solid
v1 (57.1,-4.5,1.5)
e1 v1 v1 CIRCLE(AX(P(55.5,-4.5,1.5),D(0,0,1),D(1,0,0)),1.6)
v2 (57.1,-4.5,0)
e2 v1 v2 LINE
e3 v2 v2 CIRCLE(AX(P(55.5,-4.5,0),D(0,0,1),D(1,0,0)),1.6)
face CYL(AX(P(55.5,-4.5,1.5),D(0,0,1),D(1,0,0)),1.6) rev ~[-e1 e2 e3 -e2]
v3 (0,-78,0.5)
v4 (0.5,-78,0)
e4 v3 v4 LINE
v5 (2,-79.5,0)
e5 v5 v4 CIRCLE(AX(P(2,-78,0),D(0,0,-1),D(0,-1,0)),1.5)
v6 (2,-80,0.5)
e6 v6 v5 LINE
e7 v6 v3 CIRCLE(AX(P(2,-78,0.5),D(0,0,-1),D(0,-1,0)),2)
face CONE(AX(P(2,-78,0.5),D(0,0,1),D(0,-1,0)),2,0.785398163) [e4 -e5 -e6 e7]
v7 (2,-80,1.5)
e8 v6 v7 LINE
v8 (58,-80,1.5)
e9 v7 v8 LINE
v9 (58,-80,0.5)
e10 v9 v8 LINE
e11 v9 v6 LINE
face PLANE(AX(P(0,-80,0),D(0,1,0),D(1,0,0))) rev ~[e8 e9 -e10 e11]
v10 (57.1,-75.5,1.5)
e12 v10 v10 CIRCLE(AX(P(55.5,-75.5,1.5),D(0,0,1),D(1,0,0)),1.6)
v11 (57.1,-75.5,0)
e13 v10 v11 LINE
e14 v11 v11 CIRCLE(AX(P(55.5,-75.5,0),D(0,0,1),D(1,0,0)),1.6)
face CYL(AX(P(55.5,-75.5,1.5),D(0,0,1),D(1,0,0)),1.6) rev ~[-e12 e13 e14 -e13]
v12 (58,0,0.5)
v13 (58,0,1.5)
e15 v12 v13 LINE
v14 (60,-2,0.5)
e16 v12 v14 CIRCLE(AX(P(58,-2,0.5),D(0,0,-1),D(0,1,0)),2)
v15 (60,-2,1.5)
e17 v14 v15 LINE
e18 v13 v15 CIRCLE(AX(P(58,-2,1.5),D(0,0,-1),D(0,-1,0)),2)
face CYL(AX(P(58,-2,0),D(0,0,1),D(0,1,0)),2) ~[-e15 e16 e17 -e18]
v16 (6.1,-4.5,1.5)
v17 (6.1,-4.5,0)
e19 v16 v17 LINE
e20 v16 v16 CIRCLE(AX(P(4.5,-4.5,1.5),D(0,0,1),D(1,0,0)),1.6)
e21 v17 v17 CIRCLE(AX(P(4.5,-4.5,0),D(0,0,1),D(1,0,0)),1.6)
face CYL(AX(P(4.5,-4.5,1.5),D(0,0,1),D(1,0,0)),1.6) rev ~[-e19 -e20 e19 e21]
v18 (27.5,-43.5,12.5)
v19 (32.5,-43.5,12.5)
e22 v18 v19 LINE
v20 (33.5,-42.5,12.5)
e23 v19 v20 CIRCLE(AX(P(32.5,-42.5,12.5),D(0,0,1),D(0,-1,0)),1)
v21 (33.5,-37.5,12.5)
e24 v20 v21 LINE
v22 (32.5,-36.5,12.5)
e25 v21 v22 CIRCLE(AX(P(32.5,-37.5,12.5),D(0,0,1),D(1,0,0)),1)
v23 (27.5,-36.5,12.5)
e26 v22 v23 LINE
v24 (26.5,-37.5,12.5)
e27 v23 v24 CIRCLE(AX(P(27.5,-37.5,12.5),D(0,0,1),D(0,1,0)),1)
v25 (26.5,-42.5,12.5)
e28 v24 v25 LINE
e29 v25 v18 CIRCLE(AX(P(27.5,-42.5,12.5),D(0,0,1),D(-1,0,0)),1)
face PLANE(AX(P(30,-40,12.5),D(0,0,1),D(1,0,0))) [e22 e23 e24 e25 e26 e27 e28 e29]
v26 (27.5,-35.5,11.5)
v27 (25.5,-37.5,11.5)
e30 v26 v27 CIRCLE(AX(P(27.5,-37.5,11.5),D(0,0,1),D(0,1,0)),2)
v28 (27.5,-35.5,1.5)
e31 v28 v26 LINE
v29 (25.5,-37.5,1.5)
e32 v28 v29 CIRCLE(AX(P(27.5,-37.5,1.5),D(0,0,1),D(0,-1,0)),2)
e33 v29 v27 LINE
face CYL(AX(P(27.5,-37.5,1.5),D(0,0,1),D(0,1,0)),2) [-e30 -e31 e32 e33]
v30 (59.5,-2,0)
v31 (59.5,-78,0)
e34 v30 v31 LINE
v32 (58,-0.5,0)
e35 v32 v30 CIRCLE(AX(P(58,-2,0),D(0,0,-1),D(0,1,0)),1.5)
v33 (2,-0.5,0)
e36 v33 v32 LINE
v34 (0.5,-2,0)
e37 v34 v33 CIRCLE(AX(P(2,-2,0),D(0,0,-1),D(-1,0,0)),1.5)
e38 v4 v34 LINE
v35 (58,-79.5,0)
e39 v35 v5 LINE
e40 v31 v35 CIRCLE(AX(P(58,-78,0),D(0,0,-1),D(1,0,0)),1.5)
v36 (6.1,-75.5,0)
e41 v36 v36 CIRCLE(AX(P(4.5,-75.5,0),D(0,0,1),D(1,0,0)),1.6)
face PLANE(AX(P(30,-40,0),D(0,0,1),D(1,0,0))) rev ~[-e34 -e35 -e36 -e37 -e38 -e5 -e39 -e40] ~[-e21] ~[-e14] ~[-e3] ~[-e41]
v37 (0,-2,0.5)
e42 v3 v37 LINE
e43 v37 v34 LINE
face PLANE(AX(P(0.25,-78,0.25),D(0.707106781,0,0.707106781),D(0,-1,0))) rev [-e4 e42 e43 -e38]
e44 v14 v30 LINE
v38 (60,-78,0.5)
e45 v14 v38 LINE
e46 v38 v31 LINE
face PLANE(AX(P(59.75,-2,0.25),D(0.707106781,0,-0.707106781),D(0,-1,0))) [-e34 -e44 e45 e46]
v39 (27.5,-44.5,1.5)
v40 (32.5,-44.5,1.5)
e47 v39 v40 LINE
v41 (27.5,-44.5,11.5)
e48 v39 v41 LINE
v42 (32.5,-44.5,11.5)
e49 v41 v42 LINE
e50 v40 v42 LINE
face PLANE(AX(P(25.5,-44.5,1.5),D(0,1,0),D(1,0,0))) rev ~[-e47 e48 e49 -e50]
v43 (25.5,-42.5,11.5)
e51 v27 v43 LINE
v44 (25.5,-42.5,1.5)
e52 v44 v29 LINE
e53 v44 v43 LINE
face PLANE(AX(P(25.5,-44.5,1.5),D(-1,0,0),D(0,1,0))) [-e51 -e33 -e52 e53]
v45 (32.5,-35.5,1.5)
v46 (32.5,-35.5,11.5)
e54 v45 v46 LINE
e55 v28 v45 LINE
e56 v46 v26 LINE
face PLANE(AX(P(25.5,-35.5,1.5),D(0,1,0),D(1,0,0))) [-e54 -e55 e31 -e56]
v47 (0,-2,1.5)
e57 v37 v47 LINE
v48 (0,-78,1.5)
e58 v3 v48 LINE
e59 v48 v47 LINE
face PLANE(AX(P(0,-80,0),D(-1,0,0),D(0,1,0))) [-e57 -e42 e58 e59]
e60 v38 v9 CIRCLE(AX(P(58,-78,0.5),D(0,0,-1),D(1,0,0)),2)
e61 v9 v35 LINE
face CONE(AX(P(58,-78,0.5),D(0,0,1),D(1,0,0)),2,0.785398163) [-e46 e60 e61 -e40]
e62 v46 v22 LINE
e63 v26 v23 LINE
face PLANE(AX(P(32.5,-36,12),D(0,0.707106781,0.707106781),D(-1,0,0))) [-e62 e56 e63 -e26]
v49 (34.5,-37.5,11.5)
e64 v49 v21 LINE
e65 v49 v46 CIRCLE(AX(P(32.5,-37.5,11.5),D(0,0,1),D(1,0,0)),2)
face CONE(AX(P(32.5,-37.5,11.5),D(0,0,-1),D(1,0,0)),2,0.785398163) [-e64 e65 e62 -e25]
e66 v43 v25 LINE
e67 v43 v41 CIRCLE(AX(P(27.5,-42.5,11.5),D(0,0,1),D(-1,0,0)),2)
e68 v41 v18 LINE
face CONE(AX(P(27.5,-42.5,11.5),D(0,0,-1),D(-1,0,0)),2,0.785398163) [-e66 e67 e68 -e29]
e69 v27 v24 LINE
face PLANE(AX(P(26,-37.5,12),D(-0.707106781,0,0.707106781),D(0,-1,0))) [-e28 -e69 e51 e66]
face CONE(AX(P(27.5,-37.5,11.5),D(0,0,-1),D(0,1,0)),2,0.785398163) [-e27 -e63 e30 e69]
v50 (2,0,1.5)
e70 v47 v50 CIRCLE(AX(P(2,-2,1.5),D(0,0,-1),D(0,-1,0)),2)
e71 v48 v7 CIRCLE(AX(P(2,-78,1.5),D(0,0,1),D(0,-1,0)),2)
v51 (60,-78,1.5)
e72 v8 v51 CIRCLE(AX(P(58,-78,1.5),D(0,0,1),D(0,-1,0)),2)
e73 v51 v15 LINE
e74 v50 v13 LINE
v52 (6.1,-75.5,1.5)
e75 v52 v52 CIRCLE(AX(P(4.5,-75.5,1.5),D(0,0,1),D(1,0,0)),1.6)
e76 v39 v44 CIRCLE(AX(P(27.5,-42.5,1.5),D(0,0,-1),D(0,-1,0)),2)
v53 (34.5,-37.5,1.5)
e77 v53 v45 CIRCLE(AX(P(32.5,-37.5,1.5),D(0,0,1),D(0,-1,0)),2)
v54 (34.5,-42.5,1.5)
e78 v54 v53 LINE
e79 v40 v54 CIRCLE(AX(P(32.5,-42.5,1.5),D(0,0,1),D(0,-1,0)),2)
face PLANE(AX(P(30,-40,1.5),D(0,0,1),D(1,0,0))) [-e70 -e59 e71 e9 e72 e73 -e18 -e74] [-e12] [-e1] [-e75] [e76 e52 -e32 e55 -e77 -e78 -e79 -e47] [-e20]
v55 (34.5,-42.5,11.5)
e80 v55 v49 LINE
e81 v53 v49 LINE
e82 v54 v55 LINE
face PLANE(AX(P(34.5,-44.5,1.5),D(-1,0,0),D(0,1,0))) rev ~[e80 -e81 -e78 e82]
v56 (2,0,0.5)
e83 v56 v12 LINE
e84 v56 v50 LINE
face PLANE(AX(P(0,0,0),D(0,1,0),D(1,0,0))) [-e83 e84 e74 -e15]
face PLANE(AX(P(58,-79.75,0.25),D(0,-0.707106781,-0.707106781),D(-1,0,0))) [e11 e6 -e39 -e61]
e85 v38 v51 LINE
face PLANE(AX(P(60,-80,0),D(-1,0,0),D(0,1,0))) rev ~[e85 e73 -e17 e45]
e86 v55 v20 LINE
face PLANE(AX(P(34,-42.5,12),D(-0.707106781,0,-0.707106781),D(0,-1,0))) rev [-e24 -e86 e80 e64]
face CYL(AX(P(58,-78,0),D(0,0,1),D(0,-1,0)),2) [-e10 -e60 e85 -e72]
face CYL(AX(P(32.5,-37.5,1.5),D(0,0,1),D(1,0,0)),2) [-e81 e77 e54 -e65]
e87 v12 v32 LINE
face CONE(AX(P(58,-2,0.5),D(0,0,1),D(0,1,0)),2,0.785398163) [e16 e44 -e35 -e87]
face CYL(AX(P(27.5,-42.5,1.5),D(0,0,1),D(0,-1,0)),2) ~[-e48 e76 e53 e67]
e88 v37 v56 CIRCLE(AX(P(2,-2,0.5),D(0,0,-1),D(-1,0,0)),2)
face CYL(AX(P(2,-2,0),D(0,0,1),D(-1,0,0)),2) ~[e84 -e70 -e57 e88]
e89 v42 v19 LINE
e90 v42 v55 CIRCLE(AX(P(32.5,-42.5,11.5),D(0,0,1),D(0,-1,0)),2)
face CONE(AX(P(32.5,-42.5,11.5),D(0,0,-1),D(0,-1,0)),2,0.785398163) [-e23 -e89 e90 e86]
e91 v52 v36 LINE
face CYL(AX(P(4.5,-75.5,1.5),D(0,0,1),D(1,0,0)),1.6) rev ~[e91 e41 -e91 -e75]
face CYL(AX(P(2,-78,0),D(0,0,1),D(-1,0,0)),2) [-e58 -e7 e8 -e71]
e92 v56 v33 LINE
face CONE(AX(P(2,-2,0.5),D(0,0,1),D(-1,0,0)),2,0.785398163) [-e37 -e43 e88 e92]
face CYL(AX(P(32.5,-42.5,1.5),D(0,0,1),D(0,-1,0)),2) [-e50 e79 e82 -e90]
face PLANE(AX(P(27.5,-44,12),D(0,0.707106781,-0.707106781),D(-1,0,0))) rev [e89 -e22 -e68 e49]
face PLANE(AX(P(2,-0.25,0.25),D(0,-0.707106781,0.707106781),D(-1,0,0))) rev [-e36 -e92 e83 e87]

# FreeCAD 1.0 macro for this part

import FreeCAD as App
import Part
import Sketcher
from FreeCAD import Vector
Q = App.Units.Quantity


def edges_at(feature, points):
    """Names of the edges that pass closest to the given points."""
    edges = feature.Shape.Edges
    near = lambda p: min(range(len(edges)), key=lambda i: edges[i].distToShape(Part.Vertex(*p))[0])
    return sorted({f"Edge{near(p) + 1}" for p in points})


def add_polygon(sketch, points):
    """Adds a closed chain of lines whose ends are joined by coincident constraints."""
    first, n = sketch.GeometryCount, len(points)
    for a, b in zip(points, points[1:] + points[:1]):
        sketch.addGeometry(Part.LineSegment(App.Vector(*a, 0), App.Vector(*b, 0)), False)
    for i in range(n):
        sketch.addConstraint(Sketcher.Constraint("Coincident", first + i, 2, first + (i + 1) % n, 1))

doc = App.newDocument("Part")
body = doc.addObject("PartDesign::Body", "Body")

# Sketch on XY plane
sketch1 = body.newObject("Sketcher::SketchObject", "Sketch")
sketch1.AttachmentSupport = (doc.getObject("XY_Plane"), [""])
sketch1.MapMode = "FlatFace"
add_polygon(sketch1, [(0, 0), (0, -80), (60, -80), (60, 0)])  # lines 0-3
sketch1.addConstraint([
    Sketcher.Constraint("Vertical", 0),
    Sketcher.Constraint("Horizontal", 1),
    Sketcher.Constraint("Vertical", 2),
    Sketcher.Constraint("Horizontal", 3),
    Sketcher.Constraint("Coincident", 3, 2, -1, 1),
    Sketcher.Constraint("DistanceX", 1, 1, 1, 2, Q("60 mm")),
    Sketcher.Constraint("DistanceY", 0, 2, 0, 1, Q("80 mm")),
])
pad1 = body.newObject("PartDesign::Pad", "Pad")
pad1.Profile = sketch1
pad1.Length = 1.5

# Sketch on XY plane
sketch2 = body.newObject("Sketcher::SketchObject", "Sketch001")
sketch2.AttachmentSupport = (doc.getObject("XY_Plane"), [""])
sketch2.MapMode = "FlatFace"
sketch2.AttachmentOffset = App.Placement(Vector(0, 0, 1.5), App.Rotation())
sketch2.addGeometry([
    Part.Circle(Vector(4.5, -4.5, 0), Vector(0, 0, 1), 1.6),
    Part.Circle(Vector(55.5, -4.5, 0), Vector(0, 0, 1), 1.6),
    Part.Circle(Vector(4.5, -75.5, 0), Vector(0, 0, 1), 1.6),
    Part.Circle(Vector(55.5, -75.5, 0), Vector(0, 0, 1), 1.6),
], False)
sketch2.addConstraint([
    Sketcher.Constraint("Equal", 0, 1),
    Sketcher.Constraint("Equal", 1, 2),
    Sketcher.Constraint("Equal", 2, 3),
    Sketcher.Constraint("Horizontal", 0, 3, 1, 3),
    Sketcher.Constraint("Horizontal", 2, 3, 3, 3),
    Sketcher.Constraint("Vertical", 0, 3, 2, 3),
    Sketcher.Constraint("Vertical", 1, 3, 3, 3),
    Sketcher.Constraint("Diameter", 0, Q("3.2 mm")),
    Sketcher.Constraint("DistanceX", 0, 3, 1, 3, Q("51 mm")),
    Sketcher.Constraint("DistanceY", 2, 3, 0, 3, Q("71 mm")),
    Sketcher.Constraint("DistanceX", -1, 1, 0, 3, Q("4.5 mm")),
    Sketcher.Constraint("DistanceY", 0, 3, -1, 1, Q("4.5 mm")),
])
pocket1 = body.newObject("PartDesign::Pocket", "Pocket")
pocket1.Profile = sketch2
pocket1.Length = 5

# Sketch on XY plane
sketch3 = body.newObject("Sketcher::SketchObject", "Sketch002")
sketch3.AttachmentSupport = (doc.getObject("XY_Plane"), [""])
sketch3.MapMode = "FlatFace"
sketch3.AttachmentOffset = App.Placement(Vector(0, 0, 1.5), App.Rotation())
add_polygon(sketch3, [(26, -36), (26, -44), (34, -44), (34, -36)])  # lines 0-3
sketch3.addConstraint([
    Sketcher.Constraint("Vertical", 0),
    Sketcher.Constraint("Horizontal", 1),
    Sketcher.Constraint("Vertical", 2),
    Sketcher.Constraint("Horizontal", 3),
    Sketcher.Constraint("Equal", 3, 0),
    Sketcher.Constraint("DistanceX", 1, 1, 1, 2, Q("9 mm")),
    Sketcher.Constraint("DistanceX", -1, 1, 0, 2, Q("25.5 mm")),
    Sketcher.Constraint("DistanceY", 0, 2, -1, 1, Q("44.5 mm")),
])
pad2 = body.newObject("PartDesign::Pad", "Pad001")
pad2.Profile = sketch3
pad2.Length = 11
doc.recompute()

fillet = body.newObject("PartDesign::Fillet", "Fillet")
fillet.Base = (pad2, edges_at(pad2, [
    (25.5, -44.5, 7),
    (34.5, -44.5, 7),
    (34.5, -35.5, 7),
    (25.5, -35.5, 7),
]))
fillet.Radius = 2
doc.recompute()

chamfer = body.newObject("PartDesign::Chamfer", "Chamfer")
chamfer.Base = (fillet, edges_at(fillet, [(30, -44.5, 12.5)]))
chamfer.Size = 1
doc.recompute()

fillet2 = body.newObject("PartDesign::Fillet", "Fillet001")
fillet2.Base = (chamfer, edges_at(chamfer, [
    (0, -80, 0.75),
    (60, -80, 0.75),
    (60, 0, 0.75),
    (0, 0, 0.75),
]))
fillet2.Radius = 2
doc.recompute()

chamfer2 = body.newObject("PartDesign::Chamfer", "Chamfer001")
chamfer2.Base = (fillet2, edges_at(fillet2, [(30, 0, 0)]))
chamfer2.Size = 0.5

doc.recompute()
